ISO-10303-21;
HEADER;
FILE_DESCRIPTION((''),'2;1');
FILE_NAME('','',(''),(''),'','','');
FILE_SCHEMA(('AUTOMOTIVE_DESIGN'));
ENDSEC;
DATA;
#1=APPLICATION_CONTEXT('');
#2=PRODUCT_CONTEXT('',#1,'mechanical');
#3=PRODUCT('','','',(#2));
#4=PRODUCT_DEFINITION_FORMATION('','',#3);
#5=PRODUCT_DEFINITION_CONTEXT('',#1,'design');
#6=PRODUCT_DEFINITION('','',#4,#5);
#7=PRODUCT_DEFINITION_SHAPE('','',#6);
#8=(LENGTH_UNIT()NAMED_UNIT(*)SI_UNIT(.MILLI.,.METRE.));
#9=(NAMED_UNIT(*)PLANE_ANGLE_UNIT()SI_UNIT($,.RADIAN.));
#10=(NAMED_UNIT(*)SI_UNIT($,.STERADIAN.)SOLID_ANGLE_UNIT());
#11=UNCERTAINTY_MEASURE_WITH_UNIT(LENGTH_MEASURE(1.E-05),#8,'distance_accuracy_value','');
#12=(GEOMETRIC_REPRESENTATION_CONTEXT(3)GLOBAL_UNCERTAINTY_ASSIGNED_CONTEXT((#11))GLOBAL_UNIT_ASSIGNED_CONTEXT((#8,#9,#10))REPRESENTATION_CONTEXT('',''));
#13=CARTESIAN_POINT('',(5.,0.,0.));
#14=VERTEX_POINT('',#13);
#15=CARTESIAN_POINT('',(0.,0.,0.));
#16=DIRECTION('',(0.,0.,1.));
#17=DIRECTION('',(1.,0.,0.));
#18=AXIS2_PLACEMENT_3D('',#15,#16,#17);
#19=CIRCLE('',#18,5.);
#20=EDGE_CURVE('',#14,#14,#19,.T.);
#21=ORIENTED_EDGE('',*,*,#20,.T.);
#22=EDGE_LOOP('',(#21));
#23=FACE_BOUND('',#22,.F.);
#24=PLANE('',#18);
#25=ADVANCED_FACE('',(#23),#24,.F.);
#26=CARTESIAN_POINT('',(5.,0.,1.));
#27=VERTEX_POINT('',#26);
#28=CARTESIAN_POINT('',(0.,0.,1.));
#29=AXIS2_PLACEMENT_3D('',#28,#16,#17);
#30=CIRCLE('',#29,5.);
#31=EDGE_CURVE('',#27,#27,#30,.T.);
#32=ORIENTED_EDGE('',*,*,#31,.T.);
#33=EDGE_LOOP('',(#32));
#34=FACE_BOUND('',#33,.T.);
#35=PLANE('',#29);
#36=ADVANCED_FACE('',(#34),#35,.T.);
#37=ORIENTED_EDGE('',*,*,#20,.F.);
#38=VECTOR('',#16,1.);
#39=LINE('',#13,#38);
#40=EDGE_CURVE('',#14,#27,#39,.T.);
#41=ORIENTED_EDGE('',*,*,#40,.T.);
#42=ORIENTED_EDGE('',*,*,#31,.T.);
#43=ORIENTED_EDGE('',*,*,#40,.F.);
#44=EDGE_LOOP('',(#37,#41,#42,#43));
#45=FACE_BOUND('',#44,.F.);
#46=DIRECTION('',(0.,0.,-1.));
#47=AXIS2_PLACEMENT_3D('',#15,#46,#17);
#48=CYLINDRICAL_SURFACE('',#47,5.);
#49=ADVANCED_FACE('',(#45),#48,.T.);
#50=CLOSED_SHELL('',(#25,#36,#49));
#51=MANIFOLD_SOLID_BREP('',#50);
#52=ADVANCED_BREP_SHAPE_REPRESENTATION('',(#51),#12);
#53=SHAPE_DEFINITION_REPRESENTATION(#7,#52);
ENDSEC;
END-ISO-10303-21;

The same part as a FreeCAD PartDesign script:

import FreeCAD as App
import Part
import Sketcher

doc = App.newDocument("Part")
body = doc.addObject("PartDesign::Body", "Body")

# Sketch on XY plane
sketch1 = doc.addObject("Sketcher::SketchObject", "Sketch")
body.addObject(sketch1)
sketch1.AttachmentSupport = (doc.XY_Plane, [""])
sketch1.MapMode = "FlatFace"
sketch1.addGeometry(Part.Circle(App.Vector(0, 0, 0), App.Vector(0, 0, 1), 5), False)
sketch1.addConstraint([
    Sketcher.Constraint("Coincident", 0, 3, -1, 1),
    Sketcher.Constraint("Diameter", 0, 10.0),
])
pad1 = doc.addObject("PartDesign::Pad", "Pad")
body.addObject(pad1)
pad1.Profile = sketch1
pad1.Length = 1

doc.recompute()
